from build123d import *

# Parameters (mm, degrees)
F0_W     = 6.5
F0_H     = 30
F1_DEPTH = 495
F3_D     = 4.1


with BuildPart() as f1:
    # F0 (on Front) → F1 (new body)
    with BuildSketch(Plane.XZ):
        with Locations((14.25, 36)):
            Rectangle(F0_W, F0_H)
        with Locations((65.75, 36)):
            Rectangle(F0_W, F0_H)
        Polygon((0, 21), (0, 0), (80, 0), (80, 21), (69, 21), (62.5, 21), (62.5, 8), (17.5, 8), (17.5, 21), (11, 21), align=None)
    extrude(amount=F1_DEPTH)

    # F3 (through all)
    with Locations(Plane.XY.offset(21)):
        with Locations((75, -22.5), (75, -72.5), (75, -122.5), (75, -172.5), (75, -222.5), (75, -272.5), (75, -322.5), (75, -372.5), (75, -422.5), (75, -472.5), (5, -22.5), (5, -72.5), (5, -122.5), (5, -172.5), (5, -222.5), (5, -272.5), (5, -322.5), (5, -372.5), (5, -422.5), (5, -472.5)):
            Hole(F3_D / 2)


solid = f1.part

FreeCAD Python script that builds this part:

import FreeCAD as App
import Part
import Sketcher
Q = App.Units.Quantity

doc = App.newDocument("Part")
body = doc.addObject("PartDesign::Body", "Body")

# Sketch on XZ plane
sketch1 = body.newObject("Sketcher::SketchObject", "Sketch")
sketch1.AttachmentSupport = (doc.getObject("XZ_Plane"), [""])
sketch1.MapMode = "FlatFace"
sketch1.addGeometry([
    Part.LineSegment(App.Vector(11, 51, 0), App.Vector(11, 21, 0)),  # 0
    Part.LineSegment(App.Vector(11, 21, 0), App.Vector(0, 21, 0)),  # 1
    Part.LineSegment(App.Vector(0, 21, 0), App.Vector(0, 0, 0)),  # 2
    Part.LineSegment(App.Vector(0, 0, 0), App.Vector(80, 0, 0)),  # 3
    Part.LineSegment(App.Vector(80, 0, 0), App.Vector(80, 21, 0)),  # 4
    Part.LineSegment(App.Vector(80, 21, 0), App.Vector(69, 21, 0)),  # 5
    Part.LineSegment(App.Vector(69, 21, 0), App.Vector(69, 51, 0)),  # 6
    Part.LineSegment(App.Vector(69, 51, 0), App.Vector(62.5, 51, 0)),  # 7
    Part.LineSegment(App.Vector(62.5, 51, 0), App.Vector(62.5, 8, 0)),  # 8
    Part.LineSegment(App.Vector(62.5, 8, 0), App.Vector(17.5, 8, 0)),  # 9
    Part.LineSegment(App.Vector(17.5, 8, 0), App.Vector(17.5, 51, 0)),  # 10
    Part.LineSegment(App.Vector(17.5, 51, 0), App.Vector(11, 51, 0)),  # 11
], False)
sketch1.addConstraint([
    Sketcher.Constraint("Coincident", 0, 2, 1, 1),
    Sketcher.Constraint("Coincident", 1, 2, 2, 1),
    Sketcher.Constraint("Coincident", 2, 2, 3, 1),
    Sketcher.Constraint("Coincident", 3, 2, 4, 1),
    Sketcher.Constraint("Coincident", 4, 2, 5, 1),
    Sketcher.Constraint("Coincident", 5, 2, 6, 1),
    Sketcher.Constraint("Coincident", 6, 2, 7, 1),
    Sketcher.Constraint("Coincident", 7, 2, 8, 1),
    Sketcher.Constraint("Coincident", 8, 2, 9, 1),
    Sketcher.Constraint("Coincident", 9, 2, 10, 1),
    Sketcher.Constraint("Coincident", 10, 2, 11, 1),
    Sketcher.Constraint("Coincident", 11, 2, 0, 1),
    Sketcher.Constraint("Vertical", 0),
    Sketcher.Constraint("Horizontal", 1),
    Sketcher.Constraint("Vertical", 2),
    Sketcher.Constraint("Horizontal", 3),
    Sketcher.Constraint("Vertical", 4),
    Sketcher.Constraint("Horizontal", 5),
    Sketcher.Constraint("Vertical", 6),
    Sketcher.Constraint("Horizontal", 7),
    Sketcher.Constraint("Vertical", 8),
    Sketcher.Constraint("Horizontal", 9),
    Sketcher.Constraint("Vertical", 10),
    Sketcher.Constraint("Horizontal", 11),
    Sketcher.Constraint("Coincident", 2, 2, -1, 1),
    Sketcher.Constraint("Horizontal", 1, 2, 4, 2),
    Sketcher.Constraint("Horizontal", 7, 2, 10, 2),
    Sketcher.Constraint("Equal", 1, 5),
    Sketcher.Constraint("Equal", 7, 11),
    Sketcher.Constraint("DistanceX", 1, 2, 1, 1, Q("11 mm")),
    Sketcher.Constraint("DistanceX", 3, 1, 3, 2, Q("80 mm")),
    Sketcher.Constraint("DistanceX", 9, 2, 9, 1, Q("45 mm")),
    Sketcher.Constraint("DistanceY", 0, 2, 0, 1, Q("30 mm")),
    Sketcher.Constraint("DistanceY", 2, 2, 2, 1, Q("21 mm")),
    Sketcher.Constraint("DistanceY", 8, 2, 8, 1, Q("43 mm")),
])
pad1 = body.newObject("PartDesign::Pad", "Pad")
pad1.Profile = sketch1
pad1.Length = 495

# Sketch on XY plane
sketch2 = body.newObject("Sketcher::SketchObject", "Sketch001")
sketch2.AttachmentSupport = (doc.getObject("XY_Plane"), [""])
sketch2.MapMode = "FlatFace"
sketch2.AttachmentOffset = App.Placement(App.Vector(0, 0, 21), App.Rotation())
sketch2.addGeometry([
    Part.Circle(App.Vector(75, -22.5, 0), App.Vector(0, 0, 1), 2.05),  # 0
    Part.Circle(App.Vector(75, -72.5, 0), App.Vector(0, 0, 1), 2.05),  # 1
    Part.Circle(App.Vector(75, -122.5, 0), App.Vector(0, 0, 1), 2.05),  # 2
    Part.Circle(App.Vector(75, -172.5, 0), App.Vector(0, 0, 1), 2.05),  # 3
    Part.Circle(App.Vector(75, -222.5, 0), App.Vector(0, 0, 1), 2.05),  # 4
    Part.Circle(App.Vector(75, -272.5, 0), App.Vector(0, 0, 1), 2.05),  # 5
    Part.Circle(App.Vector(75, -322.5, 0), App.Vector(0, 0, 1), 2.05),  # 6
    Part.Circle(App.Vector(75, -372.5, 0), App.Vector(0, 0, 1), 2.05),  # 7
    Part.Circle(App.Vector(75, -422.5, 0), App.Vector(0, 0, 1), 2.05),  # 8
    Part.Circle(App.Vector(75, -472.5, 0), App.Vector(0, 0, 1), 2.05),  # 9
    Part.Circle(App.Vector(5, -22.5, 0), App.Vector(0, 0, 1), 2.05),  # 10
    Part.Circle(App.Vector(5, -72.5, 0), App.Vector(0, 0, 1), 2.05),  # 11
    Part.Circle(App.Vector(5, -122.5, 0), App.Vector(0, 0, 1), 2.05),  # 12
    Part.Circle(App.Vector(5, -172.5, 0), App.Vector(0, 0, 1), 2.05),  # 13
    Part.Circle(App.Vector(5, -222.5, 0), App.Vector(0, 0, 1), 2.05),  # 14
    Part.Circle(App.Vector(5, -272.5, 0), App.Vector(0, 0, 1), 2.05),  # 15
    Part.Circle(App.Vector(5, -322.5, 0), App.Vector(0, 0, 1), 2.05),  # 16
    Part.Circle(App.Vector(5, -372.5, 0), App.Vector(0, 0, 1), 2.05),  # 17
    Part.Circle(App.Vector(5, -422.5, 0), App.Vector(0, 0, 1), 2.05),  # 18
    Part.Circle(App.Vector(5, -472.5, 0), App.Vector(0, 0, 1), 2.05),  # 19
], False)
sketch2.addConstraint([
    Sketcher.Constraint("Equal", 0, 1),
    Sketcher.Constraint("Equal", 1, 2),
    Sketcher.Constraint("Equal", 2, 3),
    Sketcher.Constraint("Equal", 3, 4),
    Sketcher.Constraint("Equal", 4, 5),
    Sketcher.Constraint("Equal", 5, 6),
    Sketcher.Constraint("Equal", 6, 7),
    Sketcher.Constraint("Equal", 7, 8),
    Sketcher.Constraint("Equal", 8, 9),
    Sketcher.Constraint("Equal", 9, 10),
    Sketcher.Constraint("Equal", 10, 11),
    Sketcher.Constraint("Equal", 11, 12),
    Sketcher.Constraint("Equal", 12, 13),
    Sketcher.Constraint("Equal", 13, 14),
    Sketcher.Constraint("Equal", 14, 15),
    Sketcher.Constraint("Equal", 15, 16),
    Sketcher.Constraint("Equal", 16, 17),
    Sketcher.Constraint("Equal", 17, 18),
    Sketcher.Constraint("Equal", 18, 19),
    Sketcher.Constraint("Horizontal", 0, 3, 10, 3),
    Sketcher.Constraint("Horizontal", 1, 3, 11, 3),
    Sketcher.Constraint("Horizontal", 2, 3, 12, 3),
    Sketcher.Constraint("Horizontal", 3, 3, 13, 3),
    Sketcher.Constraint("Horizontal", 4, 3, 14, 3),
    Sketcher.Constraint("Horizontal", 5, 3, 15, 3),
    Sketcher.Constraint("Horizontal", 6, 3, 16, 3),
    Sketcher.Constraint("Horizontal", 7, 3, 17, 3),
    Sketcher.Constraint("Horizontal", 8, 3, 18, 3),
    Sketcher.Constraint("Horizontal", 9, 3, 19, 3),
    Sketcher.Constraint("Vertical", 0, 3, 1, 3),
    Sketcher.Constraint("Vertical", 1, 3, 2, 3),
    Sketcher.Constraint("Vertical", 2, 3, 3, 3),
    Sketcher.Constraint("Vertical", 3, 3, 4, 3),
    Sketcher.Constraint("Vertical", 4, 3, 5, 3),
    Sketcher.Constraint("Vertical", 5, 3, 6, 3),
    Sketcher.Constraint("Vertical", 6, 3, 7, 3),
    Sketcher.Constraint("Vertical", 7, 3, 8, 3),
    Sketcher.Constraint("Vertical", 8, 3, 9, 3),
    Sketcher.Constraint("Vertical", 10, 3, 11, 3),
    Sketcher.Constraint("Vertical", 11, 3, 12, 3),
    Sketcher.Constraint("Vertical", 12, 3, 13, 3),
    Sketcher.Constraint("Vertical", 13, 3, 14, 3),
    Sketcher.Constraint("Vertical", 14, 3, 15, 3),
    Sketcher.Constraint("Vertical", 15, 3, 16, 3),
    Sketcher.Constraint("Vertical", 16, 3, 17, 3),
    Sketcher.Constraint("Vertical", 17, 3, 18, 3),
    Sketcher.Constraint("Vertical", 18, 3, 19, 3),
    Sketcher.Constraint("Diameter", 0, Q("4.1 mm")),
    Sketcher.Constraint("DistanceX", -1, 1, 0, 3, Q("75 mm")),
    Sketcher.Constraint("DistanceX", -1, 1, 10, 3, Q("5 mm")),
    Sketcher.Constraint("DistanceY", 1, 3, 0, 3, Q("50 mm")),
    Sketcher.Constraint("DistanceY", 2, 3, 1, 3, Q("50 mm")),
    Sketcher.Constraint("DistanceY", 3, 3, 2, 3, Q("50 mm")),
    Sketcher.Constraint("DistanceY", 4, 3, 3, 3, Q("50 mm")),
    Sketcher.Constraint("DistanceY", 5, 3, 4, 3, Q("50 mm")),
    Sketcher.Constraint("DistanceY", 6, 3, 5, 3, Q("50 mm")),
    Sketcher.Constraint("DistanceY", 7, 3, 6, 3, Q("50 mm")),
    Sketcher.Constraint("DistanceY", 8, 3, 7, 3, Q("50 mm")),
    Sketcher.Constraint("DistanceY", 9, 3, 8, 3, Q("50 mm")),
    Sketcher.Constraint("DistanceY", 0, 3, -1, 1, Q("22.5 mm")),
])
doc.recompute()
hole = body.newObject("PartDesign::Hole", "Hole")
hole.Profile = sketch2
hole.ThreadType = "None"
hole.Diameter = 4.1
hole.DepthType = "ThroughAll"

doc.recompute()
